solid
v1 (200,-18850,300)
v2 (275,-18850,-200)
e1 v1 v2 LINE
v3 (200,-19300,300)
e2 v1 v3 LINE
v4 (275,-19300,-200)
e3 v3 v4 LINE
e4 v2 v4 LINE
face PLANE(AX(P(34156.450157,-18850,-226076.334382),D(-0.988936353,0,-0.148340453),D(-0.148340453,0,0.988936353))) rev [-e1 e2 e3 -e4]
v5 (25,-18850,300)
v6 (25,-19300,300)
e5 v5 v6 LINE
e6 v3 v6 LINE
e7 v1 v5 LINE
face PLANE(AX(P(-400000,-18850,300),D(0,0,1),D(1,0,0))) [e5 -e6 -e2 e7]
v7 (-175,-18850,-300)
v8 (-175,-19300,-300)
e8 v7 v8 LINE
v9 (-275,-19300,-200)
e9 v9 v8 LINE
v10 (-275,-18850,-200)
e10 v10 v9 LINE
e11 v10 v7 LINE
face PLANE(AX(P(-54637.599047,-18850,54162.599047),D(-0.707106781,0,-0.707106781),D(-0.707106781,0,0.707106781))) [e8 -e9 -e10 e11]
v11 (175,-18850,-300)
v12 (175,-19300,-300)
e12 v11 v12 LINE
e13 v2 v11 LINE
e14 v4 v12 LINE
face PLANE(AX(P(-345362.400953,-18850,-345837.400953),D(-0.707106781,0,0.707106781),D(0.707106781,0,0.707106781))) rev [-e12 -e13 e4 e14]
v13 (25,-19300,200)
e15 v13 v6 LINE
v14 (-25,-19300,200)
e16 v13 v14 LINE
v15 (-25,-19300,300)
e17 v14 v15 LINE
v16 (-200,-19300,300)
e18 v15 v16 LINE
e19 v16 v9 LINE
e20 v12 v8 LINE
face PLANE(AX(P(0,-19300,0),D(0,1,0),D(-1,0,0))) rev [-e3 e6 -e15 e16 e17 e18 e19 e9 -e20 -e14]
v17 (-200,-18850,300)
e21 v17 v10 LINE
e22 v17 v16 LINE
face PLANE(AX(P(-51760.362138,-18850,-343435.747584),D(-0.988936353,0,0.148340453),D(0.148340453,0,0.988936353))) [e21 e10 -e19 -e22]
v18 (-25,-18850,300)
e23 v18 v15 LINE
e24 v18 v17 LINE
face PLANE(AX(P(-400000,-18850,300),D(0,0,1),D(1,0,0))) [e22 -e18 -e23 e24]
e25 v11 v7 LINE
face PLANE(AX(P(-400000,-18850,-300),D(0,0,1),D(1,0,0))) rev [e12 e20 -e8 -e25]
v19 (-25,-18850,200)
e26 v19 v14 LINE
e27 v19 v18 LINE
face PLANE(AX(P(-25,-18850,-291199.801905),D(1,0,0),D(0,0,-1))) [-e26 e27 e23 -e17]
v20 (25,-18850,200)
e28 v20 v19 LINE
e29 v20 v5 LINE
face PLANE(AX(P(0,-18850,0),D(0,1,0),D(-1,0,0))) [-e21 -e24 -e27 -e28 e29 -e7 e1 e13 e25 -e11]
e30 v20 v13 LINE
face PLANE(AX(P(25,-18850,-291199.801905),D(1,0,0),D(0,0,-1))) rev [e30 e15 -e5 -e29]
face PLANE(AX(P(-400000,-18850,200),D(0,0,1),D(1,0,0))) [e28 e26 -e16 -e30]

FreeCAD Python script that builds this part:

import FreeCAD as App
import Part
import Sketcher

V = App.Vector

doc = App.newDocument("Part")
params = doc.addObject("Spreadsheet::Sheet", "Params")
for row, (alias, value) in enumerate([
    ("sketch1_width", "350 mm"),
    ("sketch1_width2", "175 mm"),
    ("sketch1_width3", "50 mm"),
    ("sketch1_height", "100 mm"),
    ("pad1_length", "450 mm"),
], start=1):
    params.set(f"A{row}", alias)
    params.set(f"B{row}", "=" + value)
    params.setAlias(f"B{row}", alias)

body = doc.addObject("PartDesign::Body", "Body")

sketch1 = doc.addObject("Sketcher::SketchObject", "Sketch")
body.addObject(sketch1)
sketch1.AttachmentSupport = (doc.XZ_Plane, [""])
sketch1.MapMode = "FlatFace"
sketch1.AttachmentOffset = App.Placement(V(0, 0, 19300), App.Rotation())
sketch1.addGeometry([
    Part.LineSegment(V(175, -300, 0), V(-175, -300, 0)),
    Part.LineSegment(V(-175, -300, 0), V(-275, -200, 0)),
    Part.LineSegment(V(-275, -200, 0), V(-200, 300, 0)),
    Part.LineSegment(V(-200, 300, 0), V(-25, 300, 0)),
    Part.LineSegment(V(-25, 300, 0), V(-25, 200, 0)),
    Part.LineSegment(V(-25, 200, 0), V(25, 200, 0)),
    Part.LineSegment(V(25, 200, 0), V(25, 300, 0)),
    Part.LineSegment(V(25, 300, 0), V(200, 300, 0)),
    Part.LineSegment(V(200, 300, 0), V(275, -200, 0)),
    Part.LineSegment(V(275, -200, 0), V(175, -300, 0)),
], False)
sketch1.addConstraint([
    Sketcher.Constraint("Coincident", 0, 2, 1, 1),
    Sketcher.Constraint("Coincident", 1, 2, 2, 1),
    Sketcher.Constraint("Coincident", 2, 2, 3, 1),
    Sketcher.Constraint("Coincident", 3, 2, 4, 1),
    Sketcher.Constraint("Coincident", 4, 2, 5, 1),
    Sketcher.Constraint("Coincident", 5, 2, 6, 1),
    Sketcher.Constraint("Coincident", 6, 2, 7, 1),
    Sketcher.Constraint("Coincident", 7, 2, 8, 1),
    Sketcher.Constraint("Coincident", 8, 2, 9, 1),
    Sketcher.Constraint("Coincident", 9, 2, 0, 1),
    Sketcher.Constraint("Horizontal", 0),
    Sketcher.Constraint("Horizontal", 3),
    Sketcher.Constraint("Vertical", 4),
    Sketcher.Constraint("Horizontal", 5),
    Sketcher.Constraint("Vertical", 6),
    Sketcher.Constraint("Horizontal", 7),
    Sketcher.Constraint("Symmetric", 3, 2, 6, 2, -2),
    Sketcher.Constraint("Symmetric", 1, 2, 8, 2, -2),
    Sketcher.Constraint("Perpendicular", 1, 9),
    Sketcher.Constraint("Equal", 3, 7),
    Sketcher.Constraint("Equal", 1, 9),
    Sketcher.Constraint("DistanceX", 0, 2, 0, 1, 350.0),
    Sketcher.Constraint("DistanceX", 3, 1, 3, 2, 175.0),
    Sketcher.Constraint("DistanceX", 5, 1, 5, 2, 50.0),
    Sketcher.Constraint("DistanceY", 4, 2, 4, 1, 100.0),
    Sketcher.Constraint("DistanceY", 0, 2, -1, 1, 300.0),
    Sketcher.Constraint("DistanceX", 1, 2, -1, 1, 275.0),
    Sketcher.Constraint("DistanceY", -1, 1, 2, 2, 300.0),
])
sketch1.setExpression("Constraints[21]", "Params.sketch1_width")
sketch1.setExpression("Constraints[22]", "Params.sketch1_width2")
sketch1.setExpression("Constraints[23]", "Params.sketch1_width3")
sketch1.setExpression("Constraints[24]", "Params.sketch1_height")
pad1 = doc.addObject("PartDesign::Pad", "Pad")
body.addObject(pad1)
pad1.Profile = sketch1
pad1.setExpression("Length", "Params.pad1_length")
pad1.Reversed = True

doc.recompute()
